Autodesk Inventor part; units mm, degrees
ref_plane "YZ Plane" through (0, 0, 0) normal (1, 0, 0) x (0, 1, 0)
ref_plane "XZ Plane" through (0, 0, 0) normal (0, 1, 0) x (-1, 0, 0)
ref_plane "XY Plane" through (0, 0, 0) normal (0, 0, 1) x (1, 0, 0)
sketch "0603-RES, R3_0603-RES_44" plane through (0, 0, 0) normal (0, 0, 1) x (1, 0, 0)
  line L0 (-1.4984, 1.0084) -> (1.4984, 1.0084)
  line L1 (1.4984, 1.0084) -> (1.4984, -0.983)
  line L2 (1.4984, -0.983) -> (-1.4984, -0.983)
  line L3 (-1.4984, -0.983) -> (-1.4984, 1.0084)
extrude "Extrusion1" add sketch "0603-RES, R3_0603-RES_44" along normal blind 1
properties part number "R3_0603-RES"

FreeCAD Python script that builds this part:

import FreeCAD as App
import Part
import Sketcher
from FreeCAD import Vector


def add_polygon(sketch, points):
    """Adds a closed chain of lines whose ends are joined by coincident constraints."""
    first, n = sketch.GeometryCount, len(points)
    for a, b in zip(points, points[1:] + points[:1]):
        sketch.addGeometry(Part.LineSegment(App.Vector(*a, 0), App.Vector(*b, 0)), False)
    for i in range(n):
        sketch.addConstraint(Sketcher.Constraint("Coincident", first + i, 2, first + (i + 1) % n, 1))

doc = App.newDocument("Part")
body = doc.addObject("PartDesign::Body", "Body")

sketch1 = body.newObject("Sketcher::SketchObject", "Sketch")
sketch1.AttachmentSupport = (doc.getObject("XY_Plane"), [""])
sketch1.MapMode = "FlatFace"
add_polygon(sketch1, [(1.5, 1), (-1.5, 1), (-1.5, -1), (1.5, -1)])
sketch1.addConstraint(Sketcher.Constraint("Horizontal", 0))
sketch1.addConstraint(Sketcher.Constraint("Vertical", 1))
sketch1.addConstraint(Sketcher.Constraint("Horizontal", 2))
sketch1.addConstraint(Sketcher.Constraint("Vertical", 3))
sketch1.addConstraint(Sketcher.Constraint("DistanceX", 0, 2, 0, 1, 2.9968))
sketch1.addConstraint(Sketcher.Constraint("DistanceY", 1, 2, 1, 1, 1.9914))
sketch1.addConstraint(Sketcher.Constraint("DistanceY", 1, 2, -1, 1, 0.983))
sketch1.addConstraint(Sketcher.Constraint("DistanceX", 0, 2, -1, 1, 1.4984))
pad1 = body.newObject("PartDesign::Pad", "Pad")
pad1.Profile = sketch1
pad1.Length = 1

doc.recompute()
